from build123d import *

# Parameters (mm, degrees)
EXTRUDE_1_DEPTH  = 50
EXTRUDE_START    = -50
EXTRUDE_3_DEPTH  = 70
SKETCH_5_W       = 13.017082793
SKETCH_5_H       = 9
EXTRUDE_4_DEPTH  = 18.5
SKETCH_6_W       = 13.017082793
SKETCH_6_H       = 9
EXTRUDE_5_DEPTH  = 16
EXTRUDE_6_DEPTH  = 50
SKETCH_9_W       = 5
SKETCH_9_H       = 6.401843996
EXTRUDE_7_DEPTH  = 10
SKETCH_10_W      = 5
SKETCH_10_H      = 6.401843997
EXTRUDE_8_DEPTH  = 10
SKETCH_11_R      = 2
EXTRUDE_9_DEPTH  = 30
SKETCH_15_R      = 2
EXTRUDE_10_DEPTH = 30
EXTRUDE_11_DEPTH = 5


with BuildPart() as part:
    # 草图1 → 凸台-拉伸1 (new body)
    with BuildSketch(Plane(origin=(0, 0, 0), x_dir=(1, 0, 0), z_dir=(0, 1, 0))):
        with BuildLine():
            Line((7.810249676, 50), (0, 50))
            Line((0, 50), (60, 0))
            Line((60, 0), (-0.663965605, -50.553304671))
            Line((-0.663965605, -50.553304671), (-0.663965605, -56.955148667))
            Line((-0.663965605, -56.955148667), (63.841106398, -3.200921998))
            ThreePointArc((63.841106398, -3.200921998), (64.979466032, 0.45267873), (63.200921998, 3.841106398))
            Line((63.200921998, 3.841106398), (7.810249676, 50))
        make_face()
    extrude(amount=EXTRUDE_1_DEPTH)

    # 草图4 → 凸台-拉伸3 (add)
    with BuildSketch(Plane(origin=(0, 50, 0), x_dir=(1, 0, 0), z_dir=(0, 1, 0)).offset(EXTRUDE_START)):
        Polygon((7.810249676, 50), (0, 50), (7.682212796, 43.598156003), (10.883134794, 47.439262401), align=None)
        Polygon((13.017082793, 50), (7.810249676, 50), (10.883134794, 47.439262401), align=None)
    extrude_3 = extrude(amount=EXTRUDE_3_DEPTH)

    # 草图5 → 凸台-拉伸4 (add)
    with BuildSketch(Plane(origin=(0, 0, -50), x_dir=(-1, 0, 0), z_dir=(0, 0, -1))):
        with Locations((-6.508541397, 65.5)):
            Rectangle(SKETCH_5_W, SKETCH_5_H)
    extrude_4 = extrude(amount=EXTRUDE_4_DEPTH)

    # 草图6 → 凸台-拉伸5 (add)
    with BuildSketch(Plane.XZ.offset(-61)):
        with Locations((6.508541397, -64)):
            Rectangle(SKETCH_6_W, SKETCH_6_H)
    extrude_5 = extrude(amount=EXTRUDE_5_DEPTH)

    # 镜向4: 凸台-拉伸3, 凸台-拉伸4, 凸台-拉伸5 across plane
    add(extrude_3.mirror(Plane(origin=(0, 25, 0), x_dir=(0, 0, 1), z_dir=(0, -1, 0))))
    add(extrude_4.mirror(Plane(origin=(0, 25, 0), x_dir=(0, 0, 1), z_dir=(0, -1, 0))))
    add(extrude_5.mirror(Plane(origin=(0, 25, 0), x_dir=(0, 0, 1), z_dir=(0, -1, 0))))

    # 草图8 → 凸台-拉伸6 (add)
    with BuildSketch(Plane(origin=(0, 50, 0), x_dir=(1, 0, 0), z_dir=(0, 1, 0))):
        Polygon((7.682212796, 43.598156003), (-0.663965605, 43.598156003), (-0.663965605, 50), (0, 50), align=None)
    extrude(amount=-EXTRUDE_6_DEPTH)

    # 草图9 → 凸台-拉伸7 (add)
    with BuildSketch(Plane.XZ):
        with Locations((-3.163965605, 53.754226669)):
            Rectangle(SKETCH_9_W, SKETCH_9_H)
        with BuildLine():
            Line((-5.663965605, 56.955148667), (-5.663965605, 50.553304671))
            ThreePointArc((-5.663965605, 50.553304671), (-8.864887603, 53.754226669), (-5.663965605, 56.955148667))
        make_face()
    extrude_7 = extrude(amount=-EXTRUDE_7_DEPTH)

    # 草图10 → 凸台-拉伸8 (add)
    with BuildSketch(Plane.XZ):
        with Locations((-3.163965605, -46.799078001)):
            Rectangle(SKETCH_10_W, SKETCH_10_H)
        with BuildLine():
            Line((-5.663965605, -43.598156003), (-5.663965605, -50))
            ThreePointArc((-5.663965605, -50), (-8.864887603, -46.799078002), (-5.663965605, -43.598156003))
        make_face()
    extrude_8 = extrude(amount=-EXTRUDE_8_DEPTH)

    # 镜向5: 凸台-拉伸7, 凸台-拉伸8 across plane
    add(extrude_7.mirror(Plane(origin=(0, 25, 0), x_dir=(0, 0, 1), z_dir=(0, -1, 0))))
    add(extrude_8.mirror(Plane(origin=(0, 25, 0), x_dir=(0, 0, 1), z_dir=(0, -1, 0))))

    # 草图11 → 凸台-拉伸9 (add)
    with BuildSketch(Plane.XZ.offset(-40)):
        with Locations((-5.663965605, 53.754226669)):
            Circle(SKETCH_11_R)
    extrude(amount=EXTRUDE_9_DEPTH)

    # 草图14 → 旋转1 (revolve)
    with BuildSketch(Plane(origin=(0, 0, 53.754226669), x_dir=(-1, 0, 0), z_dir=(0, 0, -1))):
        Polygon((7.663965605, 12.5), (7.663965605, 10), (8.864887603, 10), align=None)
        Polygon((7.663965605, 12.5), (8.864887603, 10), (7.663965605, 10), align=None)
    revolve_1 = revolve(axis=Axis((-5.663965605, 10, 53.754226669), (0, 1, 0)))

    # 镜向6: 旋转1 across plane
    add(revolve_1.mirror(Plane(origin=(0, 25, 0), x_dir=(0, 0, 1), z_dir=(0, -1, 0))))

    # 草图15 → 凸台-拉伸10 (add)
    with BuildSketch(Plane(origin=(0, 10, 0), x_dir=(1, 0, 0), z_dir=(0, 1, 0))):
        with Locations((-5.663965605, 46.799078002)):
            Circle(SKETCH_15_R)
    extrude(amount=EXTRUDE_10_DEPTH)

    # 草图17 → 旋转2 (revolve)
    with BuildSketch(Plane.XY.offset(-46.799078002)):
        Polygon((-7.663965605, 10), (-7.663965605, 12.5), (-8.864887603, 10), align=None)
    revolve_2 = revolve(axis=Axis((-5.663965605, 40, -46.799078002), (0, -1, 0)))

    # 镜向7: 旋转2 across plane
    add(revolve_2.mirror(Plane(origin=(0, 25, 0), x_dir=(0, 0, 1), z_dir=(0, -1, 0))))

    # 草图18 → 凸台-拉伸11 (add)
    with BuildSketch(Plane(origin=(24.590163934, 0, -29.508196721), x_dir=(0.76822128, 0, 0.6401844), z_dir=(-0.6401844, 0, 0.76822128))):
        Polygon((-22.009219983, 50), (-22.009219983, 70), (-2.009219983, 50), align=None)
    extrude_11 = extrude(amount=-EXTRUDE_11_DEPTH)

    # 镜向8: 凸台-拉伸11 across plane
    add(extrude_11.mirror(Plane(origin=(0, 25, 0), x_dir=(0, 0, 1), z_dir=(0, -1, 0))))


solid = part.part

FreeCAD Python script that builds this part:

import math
import FreeCAD as App
import Part
import Sketcher

V = App.Vector
Q = App.Units.Quantity

doc = App.newDocument("Part")
body = doc.addObject("PartDesign::Body", "Body")

# Sketch on XZ plane
sketch1 = body.newObject("Sketcher::SketchObject", "Sketch")
sketch1.AttachmentSupport = (doc.getObject("XZ_Plane"), [""])
sketch1.MapMode = "FlatFace"
sketch1.addGeometry(Part.LineSegment(V(8, -50, 0), V(0, -50, 0)), False)
sketch1.addGeometry(Part.LineSegment(V(0, -50, 0), V(60, 0, 0)), False)
sketch1.addGeometry(Part.LineSegment(V(60, 0, 0), V(-1, 51, 0)), False)
sketch1.addGeometry(Part.LineSegment(V(-1, 51, 0), V(-1, 57, 0)), False)
sketch1.addGeometry(Part.LineSegment(V(-1, 57, 0), V(64, 3, 0)), False)
sketch1.addGeometry(Part.ArcOfCircle(Part.Circle(V(60, 0, 0), V(0, 0, 1), 5), math.radians(-50), math.radians(40)), False)
sketch1.addGeometry(Part.LineSegment(V(63, -4, 0), V(8, -50, 0)), False)
sketch1.addConstraint(Sketcher.Constraint("Coincident", 0, 2, 1, 1))
sketch1.addConstraint(Sketcher.Constraint("Coincident", 1, 2, 2, 1))
sketch1.addConstraint(Sketcher.Constraint("Coincident", 2, 2, 3, 1))
sketch1.addConstraint(Sketcher.Constraint("Coincident", 3, 2, 4, 1))
sketch1.addConstraint(Sketcher.Constraint("Coincident", 4, 2, 5, 2))
sketch1.addConstraint(Sketcher.Constraint("Tangent", 5, 1, 6, 1))
sketch1.addConstraint(Sketcher.Constraint("Coincident", 6, 2, 0, 1))
sketch1.addConstraint(Sketcher.Constraint("Horizontal", 0))
sketch1.addConstraint(Sketcher.Constraint("Vertical", 3))
sketch1.addConstraint(Sketcher.Constraint("Coincident", 1, 2, 5, 3))
sketch1.addConstraint(Sketcher.Constraint("PointOnObject", 5, 3, -1))
sketch1.addConstraint(Sketcher.Constraint("PointOnObject", 0, 2, -2))
sketch1.addConstraint(Sketcher.Constraint("Parallel", 2, 4))
sketch1.addConstraint(Sketcher.Constraint("Parallel", 1, 6))
sketch1.addConstraint(Sketcher.Constraint("Radius", 5, Q("5 mm")))
sketch1.addConstraint(Sketcher.Constraint("DistanceX", -1, 1, 5, 3, Q("60 mm")))
sketch1.addConstraint(Sketcher.Constraint("DistanceY", 0, 2, -1, 1, Q("50 mm")))
sketch1.addConstraint(Sketcher.Constraint("DistanceY", 3, 1, 3, 2, Q("6.401844 mm")))
sketch1.addConstraint(Sketcher.Constraint("DistanceY", -1, 1, 3, 2, Q("56.955149 mm")))
sketch1.addConstraint(Sketcher.Constraint("DistanceY", -1, 1, 4, 2, Q("3.200922 mm")))
pad1 = body.newObject("PartDesign::Pad", "Pad")
pad1.Profile = sketch1
pad1.Length = 50
pad1.Reversed = True

# Sketch on XZ plane
sketch2 = body.newObject("Sketcher::SketchObject", "Sketch001")
sketch2.AttachmentSupport = (doc.getObject("XZ_Plane"), [""])
sketch2.MapMode = "FlatFace"
sketch2.addGeometry(Part.LineSegment(V(0, -50, 0), V(7.7, -43.6, 0)), False)
sketch2.addGeometry(Part.LineSegment(V(7.7, -43.6, 0), V(10.9, -47.4, 0)), False)
sketch2.addGeometry(Part.LineSegment(V(10.9, -47.4, 0), V(13, -50, 0)), False)
sketch2.addGeometry(Part.LineSegment(V(13, -50, 0), V(0, -50, 0)), False)
sketch2.addConstraint(Sketcher.Constraint("Coincident", 0, 2, 1, 1))
sketch2.addConstraint(Sketcher.Constraint("Coincident", 1, 2, 2, 1))
sketch2.addConstraint(Sketcher.Constraint("Coincident", 2, 2, 3, 1))
sketch2.addConstraint(Sketcher.Constraint("Coincident", 3, 2, 0, 1))
sketch2.addConstraint(Sketcher.Constraint("Horizontal", 3))
sketch2.addConstraint(Sketcher.Constraint("PointOnObject", 3, 2, -2))
sketch2.addConstraint(Sketcher.Constraint("Perpendicular", 0, 1))
sketch2.addConstraint(Sketcher.Constraint("Parallel", 1, 2))
sketch2.addConstraint(Sketcher.Constraint("Distance", 0, Q("10 mm")))
sketch2.addConstraint(Sketcher.Constraint("Distance", 1, Q("5 mm")))
sketch2.addConstraint(Sketcher.Constraint("DistanceY", 2, 2, -1, 1, Q("50 mm")))
sketch2.addConstraint(Sketcher.Constraint("DistanceX", 3, 2, 3, 1, Q("13.017083 mm")))
pad2 = body.newObject("PartDesign::Pad", "Pad001")
pad2.Profile = sketch2
pad2.Length = 70
pad2.Reversed = True

# Sketch on XY plane
sketch3 = body.newObject("Sketcher::SketchObject", "Sketch002")
sketch3.AttachmentSupport = (doc.getObject("XY_Plane"), [""])
sketch3.MapMode = "FlatFace"
sketch3.AttachmentOffset = App.Placement(V(0, 0, -50), App.Rotation())
sketch3.addGeometry(Part.LineSegment(V(13, 70, 0), V(13, 61, 0)), False)
sketch3.addGeometry(Part.LineSegment(V(13, 61, 0), V(0, 61, 0)), False)
sketch3.addGeometry(Part.LineSegment(V(0, 61, 0), V(0, 70, 0)), False)
sketch3.addGeometry(Part.LineSegment(V(0, 70, 0), V(13, 70, 0)), False)
sketch3.addConstraint(Sketcher.Constraint("Coincident", 0, 2, 1, 1))
sketch3.addConstraint(Sketcher.Constraint("Coincident", 1, 2, 2, 1))
sketch3.addConstraint(Sketcher.Constraint("Coincident", 2, 2, 3, 1))
sketch3.addConstraint(Sketcher.Constraint("Coincident", 3, 2, 0, 1))
sketch3.addConstraint(Sketcher.Constraint("Vertical", 0))
sketch3.addConstraint(Sketcher.Constraint("Horizontal", 1))
sketch3.addConstraint(Sketcher.Constraint("Vertical", 2))
sketch3.addConstraint(Sketcher.Constraint("Horizontal", 3))
sketch3.addConstraint(Sketcher.Constraint("PointOnObject", 1, 2, -2))
sketch3.addConstraint(Sketcher.Constraint("DistanceY", 0, 2, 0, 1, Q("9 mm")))
sketch3.addConstraint(Sketcher.Constraint("DistanceY", -1, 1, 0, 2, Q("61 mm")))
sketch3.addConstraint(Sketcher.Constraint("DistanceX", 1, 2, 1, 1, Q("13.017083 mm")))
pad3 = body.newObject("PartDesign::Pad", "Pad002")
pad3.Profile = sketch3
pad3.Length = 18.5
pad3.Reversed = True

# Sketch on XZ plane
sketch4 = body.newObject("Sketcher::SketchObject", "Sketch003")
sketch4.AttachmentSupport = (doc.getObject("XZ_Plane"), [""])
sketch4.MapMode = "FlatFace"
sketch4.AttachmentOffset = App.Placement(V(0, 0, -61), App.Rotation())
sketch4.addGeometry(Part.LineSegment(V(0, -60, 0), V(0, -68, 0)), False)
sketch4.addGeometry(Part.LineSegment(V(0, -68, 0), V(13, -68, 0)), False)
sketch4.addGeometry(Part.LineSegment(V(13, -68, 0), V(13, -60, 0)), False)
sketch4.addGeometry(Part.LineSegment(V(13, -60, 0), V(0, -60, 0)), False)
sketch4.addConstraint(Sketcher.Constraint("Coincident", 0, 2, 1, 1))
sketch4.addConstraint(Sketcher.Constraint("Coincident", 1, 2, 2, 1))
sketch4.addConstraint(Sketcher.Constraint("Coincident", 2, 2, 3, 1))
sketch4.addConstraint(Sketcher.Constraint("Coincident", 3, 2, 0, 1))
sketch4.addConstraint(Sketcher.Constraint("Vertical", 0))
sketch4.addConstraint(Sketcher.Constraint("Horizontal", 1))
sketch4.addConstraint(Sketcher.Constraint("Vertical", 2))
sketch4.addConstraint(Sketcher.Constraint("Horizontal", 3))
sketch4.addConstraint(Sketcher.Constraint("PointOnObject", 0, 2, -2))
sketch4.addConstraint(Sketcher.Constraint("DistanceY", 0, 2, 0, 1, Q("9 mm")))
sketch4.addConstraint(Sketcher.Constraint("DistanceY", 0, 2, -1, 1, Q("68.5 mm")))
sketch4.addConstraint(Sketcher.Constraint("DistanceX", 1, 1, 1, 2, Q("13.017083 mm")))
pad4 = body.newObject("PartDesign::Pad", "Pad003")
pad4.Profile = sketch4
pad4.Length = 16
doc.recompute()

datumplane = body.newObject("PartDesign::Plane", "DatumPlane")
datumplane.AttachmentSupport = (doc.getObject("XZ_Plane"), [""])
datumplane.MapMode = "FlatFace"
datumplane.AttachmentOffset = App.Placement(V(0, 0, -25), App.Rotation())
mirrored = body.newObject("PartDesign::Mirrored", "Mirrored")
mirrored.Originals = [pad2, pad3, pad4]
mirrored.MirrorPlane = (datumplane, [""])
body.Tip = mirrored

# Sketch on XZ plane
sketch5 = body.newObject("Sketcher::SketchObject", "Sketch004")
sketch5.AttachmentSupport = (doc.getObject("XZ_Plane"), [""])
sketch5.MapMode = "FlatFace"
sketch5.AttachmentOffset = App.Placement(V(0, 0, -50), App.Rotation())
sketch5.addGeometry(Part.LineSegment(V(-0.7, -43.6, 0), V(7.7, -43.6, 0)), False)
sketch5.addGeometry(Part.LineSegment(V(7.7, -43.6, 0), V(0, -50, 0)), False)
sketch5.addGeometry(Part.LineSegment(V(0, -50, 0), V(-0.7, -50, 0)), False)
sketch5.addGeometry(Part.LineSegment(V(-0.7, -50, 0), V(-0.7, -43.6, 0)), False)
sketch5.addConstraint(Sketcher.Constraint("Coincident", 0, 2, 1, 1))
sketch5.addConstraint(Sketcher.Constraint("Coincident", 1, 2, 2, 1))
sketch5.addConstraint(Sketcher.Constraint("Coincident", 2, 2, 3, 1))
sketch5.addConstraint(Sketcher.Constraint("Coincident", 3, 2, 0, 1))
sketch5.addConstraint(Sketcher.Constraint("Horizontal", 0))
sketch5.addConstraint(Sketcher.Constraint("Horizontal", 2))
sketch5.addConstraint(Sketcher.Constraint("Vertical", 3))
sketch5.addConstraint(Sketcher.Constraint("PointOnObject", 1, 2, -2))
sketch5.addConstraint(Sketcher.Constraint("Distance", 1, Q("10 mm")))
sketch5.addConstraint(Sketcher.Constraint("DistanceY", 1, 2, -1, 1, Q("50 mm")))
sketch5.addConstraint(Sketcher.Constraint("DistanceX", 0, 1, 0, 2, Q("8.346178 mm")))
sketch5.addConstraint(Sketcher.Constraint("DistanceX", 2, 2, 2, 1, Q("0.663966 mm")))
pad5 = body.newObject("PartDesign::Pad", "Pad004")
pad5.Profile = sketch5
pad5.Length = 50

# Sketch on XZ plane
sketch6 = body.newObject("Sketcher::SketchObject", "Sketch005")
sketch6.AttachmentSupport = (doc.getObject("XZ_Plane"), [""])
sketch6.MapMode = "FlatFace"
sketch6.addGeometry(Part.LineSegment(V(-5.7, 50.6, 0), V(-0.7, 50.6, 0)), False)
sketch6.addGeometry(Part.LineSegment(V(-0.7, 50.6, 0), V(-0.7, 57, 0)), False)
sketch6.addGeometry(Part.LineSegment(V(-0.7, 57, 0), V(-5.7, 57, 0)), False)
sketch6.addGeometry(Part.ArcOfCircle(Part.Circle(V(-5.7, 53.8, 0), V(0, 0, 1), 3.2), math.radians(90), math.radians(270)), False)
sketch6.addConstraint(Sketcher.Constraint("Coincident", 0, 2, 1, 1))
sketch6.addConstraint(Sketcher.Constraint("Coincident", 1, 2, 2, 1))
sketch6.addConstraint(Sketcher.Constraint("Tangent", 2, 2, 3, 1))
sketch6.addConstraint(Sketcher.Constraint("Tangent", 3, 2, 0, 1))
sketch6.addConstraint(Sketcher.Constraint("Horizontal", 0))
sketch6.addConstraint(Sketcher.Constraint("Vertical", 1))
sketch6.addConstraint(Sketcher.Constraint("Horizontal", 2))
sketch6.addConstraint(Sketcher.Constraint("DistanceX", 0, 1, 0, 2, Q("5 mm")))
sketch6.addConstraint(Sketcher.Constraint("Radius", 3, Q("3.200922 mm")))
sketch6.addConstraint(Sketcher.Constraint("DistanceY", -1, 1, 1, 2, Q("56.955149 mm")))
sketch6.addConstraint(Sketcher.Constraint("DistanceX", 3, 3, -1, 1, Q("5.663966 mm")))
pad6 = body.newObject("PartDesign::Pad", "Pad005")
pad6.Profile = sketch6
pad6.Length = 10
pad6.Reversed = True

# Sketch on XZ plane
sketch7 = body.newObject("Sketcher::SketchObject", "Sketch006")
sketch7.AttachmentSupport = (doc.getObject("XZ_Plane"), [""])
sketch7.MapMode = "FlatFace"
sketch7.addGeometry(Part.LineSegment(V(-5.7, -50, 0), V(-0.7, -50, 0)), False)
sketch7.addGeometry(Part.LineSegment(V(-0.7, -50, 0), V(-0.7, -43.6, 0)), False)
sketch7.addGeometry(Part.LineSegment(V(-0.7, -43.6, 0), V(-5.7, -43.6, 0)), False)
sketch7.addGeometry(Part.ArcOfCircle(Part.Circle(V(-5.7, -46.8, 0), V(0, 0, 1), 3.2), math.radians(90), math.radians(270)), False)
sketch7.addConstraint(Sketcher.Constraint("Coincident", 0, 2, 1, 1))
sketch7.addConstraint(Sketcher.Constraint("Coincident", 1, 2, 2, 1))
sketch7.addConstraint(Sketcher.Constraint("Tangent", 2, 2, 3, 1))
sketch7.addConstraint(Sketcher.Constraint("Tangent", 3, 2, 0, 1))
sketch7.addConstraint(Sketcher.Constraint("Horizontal", 0))
sketch7.addConstraint(Sketcher.Constraint("Vertical", 1))
sketch7.addConstraint(Sketcher.Constraint("Horizontal", 2))
sketch7.addConstraint(Sketcher.Constraint("DistanceX", 0, 1, 0, 2, Q("5 mm")))
sketch7.addConstraint(Sketcher.Constraint("DistanceY", 0, 2, -1, 1, Q("50 mm")))
sketch7.addConstraint(Sketcher.Constraint("Radius", 3, Q("3.200922 mm")))
sketch7.addConstraint(Sketcher.Constraint("DistanceX", 3, 3, -1, 1, Q("5.663966 mm")))
pad7 = body.newObject("PartDesign::Pad", "Pad006")
pad7.Profile = sketch7
pad7.Length = 10
pad7.Reversed = True
doc.recompute()

datumplane2 = body.newObject("PartDesign::Plane", "DatumPlane001")
datumplane2.AttachmentSupport = (doc.getObject("XZ_Plane"), [""])
datumplane2.MapMode = "FlatFace"
datumplane2.AttachmentOffset = App.Placement(V(0, 0, -25), App.Rotation())
mirrored2 = body.newObject("PartDesign::Mirrored", "Mirrored001")
mirrored2.Originals = [pad6, pad7]
mirrored2.MirrorPlane = (datumplane2, [""])
body.Tip = mirrored2

# Sketch on XZ plane
sketch8 = body.newObject("Sketcher::SketchObject", "Sketch007")
sketch8.AttachmentSupport = (doc.getObject("XZ_Plane"), [""])
sketch8.MapMode = "FlatFace"
sketch8.AttachmentOffset = App.Placement(V(0, 0, -40), App.Rotation())
sketch8.addGeometry(Part.Circle(V(-5.7, 53.8, 0), V(0, 0, 1), 2), False)
sketch8.addConstraint(Sketcher.Constraint("Diameter", 0, Q("4 mm")))
sketch8.addConstraint(Sketcher.Constraint("DistanceX", 0, 3, -1, 1, Q("5.663966 mm")))
sketch8.addConstraint(Sketcher.Constraint("DistanceY", -1, 1, 0, 3, Q("53.754227 mm")))
pad8 = body.newObject("PartDesign::Pad", "Pad007")
pad8.Profile = sketch8
pad8.Length = 30

# Sketch on XY plane
sketch9 = body.newObject("Sketcher::SketchObject", "Sketch008")
sketch9.AttachmentSupport = (doc.getObject("XY_Plane"), [""])
sketch9.MapMode = "FlatFace"
sketch9.AttachmentOffset = App.Placement(V(0, 0, 53.754227), App.Rotation())
sketch9.addGeometry(Part.LineSegment(V(-7.7, 12.5, 0), V(-7.7, 10, 0)), False)
sketch9.addGeometry(Part.LineSegment(V(-7.7, 10, 0), V(-8.9, 10, 0)), False)
sketch9.addGeometry(Part.LineSegment(V(-8.9, 10, 0), V(-7.7, 12.5, 0)), False)
sketch9.addGeometry(Part.LineSegment(V(-5.7, 10, 0), V(-5.7, 12.5, 0)), True)  # axis
sketch9.addConstraint(Sketcher.Constraint("Coincident", 0, 2, 1, 1))
sketch9.addConstraint(Sketcher.Constraint("Coincident", 1, 2, 2, 1))
sketch9.addConstraint(Sketcher.Constraint("Coincident", 2, 2, 0, 1))
sketch9.addConstraint(Sketcher.Constraint("Vertical", 0))
sketch9.addConstraint(Sketcher.Constraint("Horizontal", 1))
sketch9.addConstraint(Sketcher.Constraint("Vertical", 3))
sketch9.addConstraint(Sketcher.Constraint("Horizontal", 1, 2, 3, 1))
sketch9.addConstraint(Sketcher.Constraint("Horizontal", 2, 2, 3, 2))
sketch9.addConstraint(Sketcher.Constraint("DistanceY", 0, 2, 0, 1, Q("2.5 mm")))
sketch9.addConstraint(Sketcher.Constraint("DistanceY", -1, 1, 0, 2, Q("10 mm")))
sketch9.addConstraint(Sketcher.Constraint("DistanceX", 0, 2, 3, 1, Q("2 mm")))
sketch9.addConstraint(Sketcher.Constraint("DistanceX", 1, 2, 1, 1, Q("1.200922 mm")))
sketch9.addConstraint(Sketcher.Constraint("DistanceX", 0, 2, -1, 1, Q("7.663966 mm")))
revolution = body.newObject("PartDesign::Revolution", "Revolution")
revolution.Profile = sketch9
revolution.ReferenceAxis = (sketch9, ["Axis0"])
revolution.Angle = 360
doc.recompute()

datumplane3 = body.newObject("PartDesign::Plane", "DatumPlane002")
datumplane3.AttachmentSupport = (doc.getObject("XZ_Plane"), [""])
datumplane3.MapMode = "FlatFace"
datumplane3.AttachmentOffset = App.Placement(V(0, 0, -25), App.Rotation())
mirrored3 = body.newObject("PartDesign::Mirrored", "Mirrored002")
mirrored3.Originals = [revolution]
mirrored3.MirrorPlane = (datumplane3, [""])
body.Tip = mirrored3

# Sketch on XZ plane
sketch10 = body.newObject("Sketcher::SketchObject", "Sketch009")
sketch10.AttachmentSupport = (doc.getObject("XZ_Plane"), [""])
sketch10.MapMode = "FlatFace"
sketch10.AttachmentOffset = App.Placement(V(0, 0, -10), App.Rotation())
sketch10.addGeometry(Part.Circle(V(-5.7, -46.8, 0), V(0, 0, 1), 2), False)
sketch10.addConstraint(Sketcher.Constraint("Diameter", 0, Q("4 mm")))
sketch10.addConstraint(Sketcher.Constraint("DistanceY", 0, 3, -1, 1, Q("46.799078 mm")))
sketch10.addConstraint(Sketcher.Constraint("DistanceX", 0, 3, -1, 1, Q("5.663966 mm")))
pad9 = body.newObject("PartDesign::Pad", "Pad008")
pad9.Profile = sketch10
pad9.Length = 30
pad9.Reversed = True

# Sketch on XY plane
sketch11 = body.newObject("Sketcher::SketchObject", "Sketch010")
sketch11.AttachmentSupport = (doc.getObject("XY_Plane"), [""])
sketch11.MapMode = "FlatFace"
sketch11.AttachmentOffset = App.Placement(V(0, 0, -46.799078), App.Rotation())
sketch11.addGeometry(Part.LineSegment(V(-7.7, 10, 0), V(-7.7, 12.5, 0)), False)
sketch11.addGeometry(Part.LineSegment(V(-7.7, 12.5, 0), V(-8.9, 10, 0)), False)
sketch11.addGeometry(Part.LineSegment(V(-8.9, 10, 0), V(-7.7, 10, 0)), False)
sketch11.addGeometry(Part.LineSegment(V(-5.7, 12.5, 0), V(-5.7, 10, 0)), True)  # axis
sketch11.addConstraint(Sketcher.Constraint("Coincident", 0, 2, 1, 1))
sketch11.addConstraint(Sketcher.Constraint("Coincident", 1, 2, 2, 1))
sketch11.addConstraint(Sketcher.Constraint("Coincident", 2, 2, 0, 1))
sketch11.addConstraint(Sketcher.Constraint("Vertical", 0))
sketch11.addConstraint(Sketcher.Constraint("Horizontal", 2))
sketch11.addConstraint(Sketcher.Constraint("Vertical", 3))
sketch11.addConstraint(Sketcher.Constraint("Horizontal", 0, 2, 3, 1))
sketch11.addConstraint(Sketcher.Constraint("Horizontal", 2, 2, 3, 2))
sketch11.addConstraint(Sketcher.Constraint("DistanceY", 0, 1, 0, 2, Q("2.5 mm")))
sketch11.addConstraint(Sketcher.Constraint("DistanceY", -1, 1, 1, 2, Q("10 mm")))
sketch11.addConstraint(Sketcher.Constraint("DistanceX", 0, 2, 3, 1, Q("2 mm")))
sketch11.addConstraint(Sketcher.Constraint("DistanceX", 2, 1, 2, 2, Q("1.200922 mm")))
sketch11.addConstraint(Sketcher.Constraint("DistanceX", 0, 2, -1, 1, Q("7.663966 mm")))
revolution2 = body.newObject("PartDesign::Revolution", "Revolution001")
revolution2.Profile = sketch11
revolution2.ReferenceAxis = (sketch11, ["Axis0"])
revolution2.Angle = 360
doc.recompute()

datumplane4 = body.newObject("PartDesign::Plane", "DatumPlane003")
datumplane4.AttachmentSupport = (doc.getObject("XZ_Plane"), [""])
datumplane4.MapMode = "FlatFace"
datumplane4.AttachmentOffset = App.Placement(V(0, 0, -25), App.Rotation())
mirrored4 = body.newObject("PartDesign::Mirrored", "Mirrored003")
mirrored4.Originals = [revolution2]
mirrored4.MirrorPlane = (datumplane4, [""])
body.Tip = mirrored4

# Sketch on an angled plane
sketch12 = body.newObject("Sketcher::SketchObject", "Sketch011")
sketch12.Placement = App.Placement(V(24.590164, 0, -29.508197), App.Rotation(V(0.76822128, 0, 0.6401844), V(0, 1.000000001, 0), V(-0.6401844, 0, 0.76822128), "ZXY"))
sketch12.addGeometry(Part.LineSegment(V(-22, 70, 0), V(-22, 50, 0)), False)
sketch12.addGeometry(Part.LineSegment(V(-22, 50, 0), V(-2, 50, 0)), False)
sketch12.addGeometry(Part.LineSegment(V(-2, 50, 0), V(-22, 70, 0)), False)
sketch12.addConstraint(Sketcher.Constraint("Coincident", 0, 2, 1, 1))
sketch12.addConstraint(Sketcher.Constraint("Coincident", 1, 2, 2, 1))
sketch12.addConstraint(Sketcher.Constraint("Coincident", 2, 2, 0, 1))
sketch12.addConstraint(Sketcher.Constraint("Vertical", 0))
sketch12.addConstraint(Sketcher.Constraint("Horizontal", 1))
sketch12.addConstraint(Sketcher.Constraint("Equal", 1, 0))
sketch12.addConstraint(Sketcher.Constraint("DistanceX", 1, 1, 1, 2, Q("20 mm")))
sketch12.addConstraint(Sketcher.Constraint("DistanceY", -1, 1, 0, 2, Q("50 mm")))
sketch12.addConstraint(Sketcher.Constraint("DistanceX", 0, 2, -1, 1, Q("22.00922 mm")))
pad10 = body.newObject("PartDesign::Pad", "Pad009")
pad10.Profile = sketch12
pad10.Length = 5
pad10.Reversed = True
doc.recompute()

datumplane5 = body.newObject("PartDesign::Plane", "DatumPlane004")
datumplane5.AttachmentSupport = (doc.getObject("XZ_Plane"), [""])
datumplane5.MapMode = "FlatFace"
datumplane5.AttachmentOffset = App.Placement(V(0, 0, -25), App.Rotation())
mirrored5 = body.newObject("PartDesign::Mirrored", "Mirrored004")
mirrored5.Originals = [pad10]
mirrored5.MirrorPlane = (datumplane5, [""])
body.Tip = mirrored5

doc.recompute()
